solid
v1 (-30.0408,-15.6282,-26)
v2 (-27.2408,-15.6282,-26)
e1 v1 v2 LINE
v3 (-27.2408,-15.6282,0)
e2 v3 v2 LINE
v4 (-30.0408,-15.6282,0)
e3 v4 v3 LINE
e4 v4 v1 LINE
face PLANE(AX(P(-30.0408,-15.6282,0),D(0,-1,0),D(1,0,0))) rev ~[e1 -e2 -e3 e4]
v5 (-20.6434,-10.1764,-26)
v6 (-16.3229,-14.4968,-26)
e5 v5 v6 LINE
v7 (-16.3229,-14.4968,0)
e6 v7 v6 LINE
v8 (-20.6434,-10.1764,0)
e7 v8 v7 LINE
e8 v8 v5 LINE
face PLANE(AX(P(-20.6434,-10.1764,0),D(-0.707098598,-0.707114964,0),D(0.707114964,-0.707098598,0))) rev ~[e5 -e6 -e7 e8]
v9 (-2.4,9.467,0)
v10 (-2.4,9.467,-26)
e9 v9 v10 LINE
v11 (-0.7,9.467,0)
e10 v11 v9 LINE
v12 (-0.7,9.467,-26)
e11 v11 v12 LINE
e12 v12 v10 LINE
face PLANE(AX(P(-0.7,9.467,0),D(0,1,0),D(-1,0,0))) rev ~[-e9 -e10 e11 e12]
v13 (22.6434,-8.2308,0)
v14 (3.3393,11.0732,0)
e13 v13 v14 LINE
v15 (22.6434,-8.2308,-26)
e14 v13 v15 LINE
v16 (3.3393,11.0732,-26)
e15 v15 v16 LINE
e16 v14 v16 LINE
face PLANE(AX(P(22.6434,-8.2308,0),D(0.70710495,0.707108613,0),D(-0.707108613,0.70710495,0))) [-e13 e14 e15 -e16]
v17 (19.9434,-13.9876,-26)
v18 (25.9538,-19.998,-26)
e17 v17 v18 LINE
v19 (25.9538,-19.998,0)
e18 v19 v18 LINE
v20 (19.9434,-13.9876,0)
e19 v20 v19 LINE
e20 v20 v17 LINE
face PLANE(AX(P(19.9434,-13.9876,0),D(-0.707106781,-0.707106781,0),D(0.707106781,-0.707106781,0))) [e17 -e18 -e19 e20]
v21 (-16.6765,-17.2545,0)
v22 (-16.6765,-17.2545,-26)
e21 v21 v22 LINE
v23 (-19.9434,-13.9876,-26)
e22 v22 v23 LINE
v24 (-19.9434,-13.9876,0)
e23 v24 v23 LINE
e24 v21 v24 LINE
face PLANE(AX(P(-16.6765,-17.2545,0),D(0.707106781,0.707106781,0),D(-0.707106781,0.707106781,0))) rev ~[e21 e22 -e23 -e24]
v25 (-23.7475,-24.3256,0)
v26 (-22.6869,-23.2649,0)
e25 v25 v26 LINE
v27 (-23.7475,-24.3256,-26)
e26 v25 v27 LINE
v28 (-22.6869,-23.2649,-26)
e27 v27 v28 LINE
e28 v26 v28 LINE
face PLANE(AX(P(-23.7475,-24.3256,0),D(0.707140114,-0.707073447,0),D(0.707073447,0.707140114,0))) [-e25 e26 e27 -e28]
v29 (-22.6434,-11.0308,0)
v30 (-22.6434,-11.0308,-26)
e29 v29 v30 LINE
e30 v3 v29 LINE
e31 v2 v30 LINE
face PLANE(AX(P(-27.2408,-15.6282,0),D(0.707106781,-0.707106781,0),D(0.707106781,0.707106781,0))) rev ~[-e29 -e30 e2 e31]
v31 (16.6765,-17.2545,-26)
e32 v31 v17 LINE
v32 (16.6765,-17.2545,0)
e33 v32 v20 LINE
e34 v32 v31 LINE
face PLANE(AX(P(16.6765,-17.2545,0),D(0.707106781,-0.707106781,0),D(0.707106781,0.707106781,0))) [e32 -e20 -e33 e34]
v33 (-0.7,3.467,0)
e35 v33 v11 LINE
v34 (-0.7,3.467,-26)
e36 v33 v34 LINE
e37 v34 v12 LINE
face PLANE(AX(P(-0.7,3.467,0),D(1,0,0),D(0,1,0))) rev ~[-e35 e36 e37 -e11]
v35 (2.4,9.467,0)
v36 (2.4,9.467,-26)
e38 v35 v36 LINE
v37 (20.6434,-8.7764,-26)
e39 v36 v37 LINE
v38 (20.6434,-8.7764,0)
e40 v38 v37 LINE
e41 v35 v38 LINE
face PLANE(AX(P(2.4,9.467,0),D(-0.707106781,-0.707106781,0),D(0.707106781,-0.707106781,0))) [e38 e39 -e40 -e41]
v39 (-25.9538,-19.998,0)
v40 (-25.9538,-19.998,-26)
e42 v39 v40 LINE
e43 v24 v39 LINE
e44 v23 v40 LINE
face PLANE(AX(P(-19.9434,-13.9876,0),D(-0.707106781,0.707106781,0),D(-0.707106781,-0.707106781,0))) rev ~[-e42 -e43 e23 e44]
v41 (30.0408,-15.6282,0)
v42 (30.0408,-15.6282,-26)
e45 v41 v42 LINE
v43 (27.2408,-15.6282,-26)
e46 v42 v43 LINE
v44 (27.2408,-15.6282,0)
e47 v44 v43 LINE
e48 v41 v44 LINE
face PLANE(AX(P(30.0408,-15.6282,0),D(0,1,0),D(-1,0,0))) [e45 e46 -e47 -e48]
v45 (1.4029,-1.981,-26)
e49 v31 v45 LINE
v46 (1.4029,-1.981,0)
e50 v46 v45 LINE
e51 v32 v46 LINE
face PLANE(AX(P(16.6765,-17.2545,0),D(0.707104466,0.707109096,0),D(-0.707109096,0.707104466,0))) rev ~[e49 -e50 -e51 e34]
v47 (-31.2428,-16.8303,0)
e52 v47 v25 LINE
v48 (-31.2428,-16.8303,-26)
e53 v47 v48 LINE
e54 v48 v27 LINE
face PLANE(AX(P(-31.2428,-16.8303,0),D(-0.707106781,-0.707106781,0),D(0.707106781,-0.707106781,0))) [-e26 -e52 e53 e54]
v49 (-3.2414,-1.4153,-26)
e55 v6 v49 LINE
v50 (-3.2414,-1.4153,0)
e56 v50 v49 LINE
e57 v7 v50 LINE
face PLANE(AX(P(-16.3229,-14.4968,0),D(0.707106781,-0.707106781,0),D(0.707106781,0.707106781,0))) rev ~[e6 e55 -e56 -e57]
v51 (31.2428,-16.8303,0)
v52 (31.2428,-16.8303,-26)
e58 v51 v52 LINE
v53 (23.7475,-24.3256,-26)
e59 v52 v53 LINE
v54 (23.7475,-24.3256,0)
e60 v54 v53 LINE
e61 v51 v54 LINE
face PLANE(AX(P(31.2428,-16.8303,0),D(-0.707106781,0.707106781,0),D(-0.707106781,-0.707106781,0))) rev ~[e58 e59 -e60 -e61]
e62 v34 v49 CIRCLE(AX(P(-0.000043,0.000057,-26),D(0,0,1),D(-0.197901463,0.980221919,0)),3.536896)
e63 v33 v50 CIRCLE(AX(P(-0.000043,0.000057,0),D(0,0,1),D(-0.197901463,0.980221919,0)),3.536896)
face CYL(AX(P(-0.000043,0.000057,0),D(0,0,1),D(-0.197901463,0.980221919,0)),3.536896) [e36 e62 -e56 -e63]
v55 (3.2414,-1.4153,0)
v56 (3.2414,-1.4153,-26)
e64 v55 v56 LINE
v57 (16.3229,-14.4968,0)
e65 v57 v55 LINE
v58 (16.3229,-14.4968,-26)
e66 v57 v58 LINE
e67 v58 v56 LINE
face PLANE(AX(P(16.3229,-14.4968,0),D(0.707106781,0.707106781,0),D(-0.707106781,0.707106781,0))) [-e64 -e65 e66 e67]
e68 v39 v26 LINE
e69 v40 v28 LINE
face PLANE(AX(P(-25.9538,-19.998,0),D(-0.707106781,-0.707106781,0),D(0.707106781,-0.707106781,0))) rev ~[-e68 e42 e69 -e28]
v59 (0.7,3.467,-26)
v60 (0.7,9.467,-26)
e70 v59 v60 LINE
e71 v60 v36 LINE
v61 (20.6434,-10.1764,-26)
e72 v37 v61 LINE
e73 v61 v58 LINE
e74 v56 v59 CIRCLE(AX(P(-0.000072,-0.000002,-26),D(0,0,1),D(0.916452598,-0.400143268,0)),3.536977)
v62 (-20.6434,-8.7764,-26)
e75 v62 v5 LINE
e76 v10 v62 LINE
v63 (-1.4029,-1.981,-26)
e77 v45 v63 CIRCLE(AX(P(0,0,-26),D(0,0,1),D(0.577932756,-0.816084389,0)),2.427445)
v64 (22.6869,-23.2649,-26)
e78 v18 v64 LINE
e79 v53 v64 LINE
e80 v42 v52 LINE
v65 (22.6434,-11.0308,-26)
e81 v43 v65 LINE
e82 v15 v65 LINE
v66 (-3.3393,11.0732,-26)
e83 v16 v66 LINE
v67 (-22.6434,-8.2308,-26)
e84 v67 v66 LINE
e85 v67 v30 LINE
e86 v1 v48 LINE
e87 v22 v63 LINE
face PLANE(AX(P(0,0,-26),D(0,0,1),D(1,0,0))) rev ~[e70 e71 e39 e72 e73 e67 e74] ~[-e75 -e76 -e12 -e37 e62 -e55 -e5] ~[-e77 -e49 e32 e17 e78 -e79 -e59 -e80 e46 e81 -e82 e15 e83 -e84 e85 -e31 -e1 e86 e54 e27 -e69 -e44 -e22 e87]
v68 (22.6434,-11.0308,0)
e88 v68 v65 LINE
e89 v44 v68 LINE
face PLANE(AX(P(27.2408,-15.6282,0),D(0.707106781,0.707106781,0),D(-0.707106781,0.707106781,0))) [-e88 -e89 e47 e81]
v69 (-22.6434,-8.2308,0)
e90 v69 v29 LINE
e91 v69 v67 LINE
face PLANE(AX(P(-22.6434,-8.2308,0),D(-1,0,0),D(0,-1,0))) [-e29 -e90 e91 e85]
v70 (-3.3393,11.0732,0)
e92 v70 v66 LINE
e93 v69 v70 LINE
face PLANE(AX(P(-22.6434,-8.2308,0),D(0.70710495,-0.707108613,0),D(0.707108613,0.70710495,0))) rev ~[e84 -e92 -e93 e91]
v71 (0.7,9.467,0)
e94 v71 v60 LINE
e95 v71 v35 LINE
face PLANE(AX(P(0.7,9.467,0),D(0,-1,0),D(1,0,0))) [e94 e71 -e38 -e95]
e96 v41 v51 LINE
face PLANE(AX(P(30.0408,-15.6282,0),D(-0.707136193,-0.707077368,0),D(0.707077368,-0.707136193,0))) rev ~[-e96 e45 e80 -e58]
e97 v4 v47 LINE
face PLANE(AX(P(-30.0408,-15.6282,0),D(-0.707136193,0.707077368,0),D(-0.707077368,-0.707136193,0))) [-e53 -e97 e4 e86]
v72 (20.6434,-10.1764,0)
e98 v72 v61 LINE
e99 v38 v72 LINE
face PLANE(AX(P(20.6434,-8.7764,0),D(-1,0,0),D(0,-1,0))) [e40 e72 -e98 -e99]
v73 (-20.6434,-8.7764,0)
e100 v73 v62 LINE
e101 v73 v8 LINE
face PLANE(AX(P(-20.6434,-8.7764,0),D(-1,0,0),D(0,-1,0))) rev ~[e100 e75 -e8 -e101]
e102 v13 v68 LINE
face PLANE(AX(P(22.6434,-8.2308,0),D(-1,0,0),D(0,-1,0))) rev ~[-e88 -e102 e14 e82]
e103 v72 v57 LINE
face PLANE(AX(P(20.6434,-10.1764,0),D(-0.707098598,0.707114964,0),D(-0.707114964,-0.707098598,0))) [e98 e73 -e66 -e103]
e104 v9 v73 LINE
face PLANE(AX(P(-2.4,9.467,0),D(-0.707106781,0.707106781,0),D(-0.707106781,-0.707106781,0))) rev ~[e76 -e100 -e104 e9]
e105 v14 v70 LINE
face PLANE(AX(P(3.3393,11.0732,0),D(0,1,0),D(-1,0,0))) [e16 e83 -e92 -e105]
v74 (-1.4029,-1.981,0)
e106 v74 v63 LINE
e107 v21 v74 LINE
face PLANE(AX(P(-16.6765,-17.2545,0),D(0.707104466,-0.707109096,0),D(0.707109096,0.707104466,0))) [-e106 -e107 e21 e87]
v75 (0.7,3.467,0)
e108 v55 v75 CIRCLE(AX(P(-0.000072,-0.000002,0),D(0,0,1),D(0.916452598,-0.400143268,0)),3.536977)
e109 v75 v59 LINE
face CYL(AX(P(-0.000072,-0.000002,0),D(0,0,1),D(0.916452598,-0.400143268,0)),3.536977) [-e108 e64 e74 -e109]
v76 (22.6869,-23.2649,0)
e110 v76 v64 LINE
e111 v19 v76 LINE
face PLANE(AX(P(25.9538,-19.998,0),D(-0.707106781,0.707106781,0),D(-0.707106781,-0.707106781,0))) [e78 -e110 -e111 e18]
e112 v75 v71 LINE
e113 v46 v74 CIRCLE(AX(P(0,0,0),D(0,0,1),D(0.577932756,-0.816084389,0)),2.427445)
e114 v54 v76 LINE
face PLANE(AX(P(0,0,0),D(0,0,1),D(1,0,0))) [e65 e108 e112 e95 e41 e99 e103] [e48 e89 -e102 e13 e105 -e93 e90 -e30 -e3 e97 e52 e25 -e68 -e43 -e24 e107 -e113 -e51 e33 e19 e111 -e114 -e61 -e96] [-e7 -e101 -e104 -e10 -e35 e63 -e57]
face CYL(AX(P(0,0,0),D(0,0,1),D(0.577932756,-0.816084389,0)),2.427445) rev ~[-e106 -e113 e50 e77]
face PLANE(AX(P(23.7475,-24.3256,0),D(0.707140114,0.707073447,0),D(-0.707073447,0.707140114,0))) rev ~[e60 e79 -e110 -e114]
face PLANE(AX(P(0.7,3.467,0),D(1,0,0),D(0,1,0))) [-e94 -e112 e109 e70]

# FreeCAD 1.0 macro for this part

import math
import FreeCAD as App
import Part
import Sketcher
from FreeCAD import Vector

doc = App.newDocument("Part")
body = doc.addObject("PartDesign::Body", "Body")

# Sketch on XY plane
sketch1 = body.newObject("Sketcher::SketchObject", "Sketch")
sketch1.AttachmentSupport = (doc.getObject("XY_Plane"), [""])
sketch1.MapMode = "FlatFace"
sketch1.addGeometry(Part.LineSegment(Vector(-3.3, 11.1, 0), Vector(-22.6, -8.2, 0)), False)
sketch1.addGeometry(Part.LineSegment(Vector(-22.6, -8.2, 0), Vector(-22.6, -11, 0)), False)
sketch1.addGeometry(Part.LineSegment(Vector(-22.6, -11, 0), Vector(-27.2, -15.6, 0)), False)
sketch1.addGeometry(Part.LineSegment(Vector(-27.2, -15.6, 0), Vector(-30, -15.6, 0)), False)
sketch1.addGeometry(Part.LineSegment(Vector(-30, -15.6, 0), Vector(-31.2, -16.8, 0)), False)
sketch1.addGeometry(Part.LineSegment(Vector(-31.2, -16.8, 0), Vector(-23.7, -24.3, 0)), False)
sketch1.addGeometry(Part.LineSegment(Vector(-23.7, -24.3, 0), Vector(-22.7, -23.3, 0)), False)
sketch1.addGeometry(Part.LineSegment(Vector(-22.7, -23.3, 0), Vector(-26, -20, 0)), False)
sketch1.addGeometry(Part.LineSegment(Vector(-26, -20, 0), Vector(-19.9, -14, 0)), False)
sketch1.addGeometry(Part.LineSegment(Vector(-19.9, -14, 0), Vector(-16.7, -17.3, 0)), False)
sketch1.addGeometry(Part.LineSegment(Vector(-16.7, -17.3, 0), Vector(-1.4, -2, 0)), False)
sketch1.addGeometry(Part.ArcOfCircle(Part.Circle(Vector(0, 0, 0), Vector(0, 0, 1), 2.4), math.radians(-55), math.radians(235)), False)
sketch1.addGeometry(Part.LineSegment(Vector(1.4, -2, 0), Vector(16.7, -17.3, 0)), False)
sketch1.addGeometry(Part.LineSegment(Vector(16.7, -17.3, 0), Vector(19.9, -14, 0)), False)
sketch1.addGeometry(Part.LineSegment(Vector(19.9, -14, 0), Vector(26, -20, 0)), False)
sketch1.addGeometry(Part.LineSegment(Vector(26, -20, 0), Vector(22.7, -23.3, 0)), False)
sketch1.addGeometry(Part.LineSegment(Vector(22.7, -23.3, 0), Vector(23.7, -24.3, 0)), False)
sketch1.addGeometry(Part.LineSegment(Vector(23.7, -24.3, 0), Vector(31.2, -16.8, 0)), False)
sketch1.addGeometry(Part.LineSegment(Vector(31.2, -16.8, 0), Vector(30, -15.6, 0)), False)
sketch1.addGeometry(Part.LineSegment(Vector(30, -15.6, 0), Vector(27.2, -15.6, 0)), False)
sketch1.addGeometry(Part.LineSegment(Vector(27.2, -15.6, 0), Vector(22.6, -11, 0)), False)
sketch1.addGeometry(Part.LineSegment(Vector(22.6, -11, 0), Vector(22.6, -8.2, 0)), False)
sketch1.addGeometry(Part.LineSegment(Vector(22.6, -8.2, 0), Vector(3.3, 11.1, 0)), False)
sketch1.addGeometry(Part.LineSegment(Vector(3.3, 11.1, 0), Vector(-3.3, 11.1, 0)), False)
sketch1.addGeometry(Part.LineSegment(Vector(-2.4, 9.5, 0), Vector(-0.7, 9.5, 0)), False)
sketch1.addGeometry(Part.LineSegment(Vector(-0.7, 9.5, 0), Vector(-0.7, 3.5, 0)), False)
sketch1.addGeometry(Part.ArcOfCircle(Part.Circle(Vector(0, 0, 0), Vector(0, 0, 1), 3.5), math.radians(101), math.radians(204)), False)
sketch1.addGeometry(Part.LineSegment(Vector(-3.2, -1.4, 0), Vector(-16.3, -14.5, 0)), False)
sketch1.addGeometry(Part.LineSegment(Vector(-16.3, -14.5, 0), Vector(-20.6, -10.2, 0)), False)
sketch1.addGeometry(Part.LineSegment(Vector(-20.6, -10.2, 0), Vector(-20.6, -8.8, 0)), False)
sketch1.addGeometry(Part.LineSegment(Vector(-20.6, -8.8, 0), Vector(-2.4, 9.5, 0)), False)
sketch1.addGeometry(Part.LineSegment(Vector(0.7, 3.5, 0), Vector(0.7, 9.5, 0)), False)
sketch1.addGeometry(Part.LineSegment(Vector(0.7, 9.5, 0), Vector(2.4, 9.5, 0)), False)
sketch1.addGeometry(Part.LineSegment(Vector(2.4, 9.5, 0), Vector(20.6, -8.8, 0)), False)
sketch1.addGeometry(Part.LineSegment(Vector(20.6, -8.8, 0), Vector(20.6, -10.2, 0)), False)
sketch1.addGeometry(Part.LineSegment(Vector(20.6, -10.2, 0), Vector(16.3, -14.5, 0)), False)
sketch1.addGeometry(Part.LineSegment(Vector(16.3, -14.5, 0), Vector(3.2, -1.4, 0)), False)
sketch1.addGeometry(Part.ArcOfCircle(Part.Circle(Vector(0, 0, 0), Vector(0, 0, 1), 3.5), math.radians(-24), math.radians(79)), False)
sketch1.addConstraint(Sketcher.Constraint("Coincident", 0, 2, 1, 1))
sketch1.addConstraint(Sketcher.Constraint("Coincident", 1, 2, 2, 1))
sketch1.addConstraint(Sketcher.Constraint("Coincident", 2, 2, 3, 1))
sketch1.addConstraint(Sketcher.Constraint("Coincident", 3, 2, 4, 1))
sketch1.addConstraint(Sketcher.Constraint("Coincident", 4, 2, 5, 1))
sketch1.addConstraint(Sketcher.Constraint("Coincident", 5, 2, 6, 1))
sketch1.addConstraint(Sketcher.Constraint("Coincident", 6, 2, 7, 1))
sketch1.addConstraint(Sketcher.Constraint("Coincident", 7, 2, 8, 1))
sketch1.addConstraint(Sketcher.Constraint("Coincident", 8, 2, 9, 1))
sketch1.addConstraint(Sketcher.Constraint("Coincident", 9, 2, 10, 1))
sketch1.addConstraint(Sketcher.Constraint("Coincident", 10, 2, 11, 2))
sketch1.addConstraint(Sketcher.Constraint("Coincident", 11, 1, 12, 1))
sketch1.addConstraint(Sketcher.Constraint("Coincident", 12, 2, 13, 1))
sketch1.addConstraint(Sketcher.Constraint("Coincident", 13, 2, 14, 1))
sketch1.addConstraint(Sketcher.Constraint("Coincident", 14, 2, 15, 1))
sketch1.addConstraint(Sketcher.Constraint("Coincident", 15, 2, 16, 1))
sketch1.addConstraint(Sketcher.Constraint("Coincident", 16, 2, 17, 1))
sketch1.addConstraint(Sketcher.Constraint("Coincident", 17, 2, 18, 1))
sketch1.addConstraint(Sketcher.Constraint("Coincident", 18, 2, 19, 1))
sketch1.addConstraint(Sketcher.Constraint("Coincident", 19, 2, 20, 1))
sketch1.addConstraint(Sketcher.Constraint("Coincident", 20, 2, 21, 1))
sketch1.addConstraint(Sketcher.Constraint("Coincident", 21, 2, 22, 1))
sketch1.addConstraint(Sketcher.Constraint("Coincident", 22, 2, 23, 1))
sketch1.addConstraint(Sketcher.Constraint("Coincident", 23, 2, 0, 1))
sketch1.addConstraint(Sketcher.Constraint("Coincident", 24, 2, 25, 1))
sketch1.addConstraint(Sketcher.Constraint("Coincident", 25, 2, 26, 1))
sketch1.addConstraint(Sketcher.Constraint("Coincident", 26, 2, 27, 1))
sketch1.addConstraint(Sketcher.Constraint("Coincident", 27, 2, 28, 1))
sketch1.addConstraint(Sketcher.Constraint("Coincident", 28, 2, 29, 1))
sketch1.addConstraint(Sketcher.Constraint("Coincident", 29, 2, 30, 1))
sketch1.addConstraint(Sketcher.Constraint("Coincident", 30, 2, 24, 1))
sketch1.addConstraint(Sketcher.Constraint("Coincident", 31, 2, 32, 1))
sketch1.addConstraint(Sketcher.Constraint("Coincident", 32, 2, 33, 1))
sketch1.addConstraint(Sketcher.Constraint("Coincident", 33, 2, 34, 1))
sketch1.addConstraint(Sketcher.Constraint("Coincident", 34, 2, 35, 1))
sketch1.addConstraint(Sketcher.Constraint("Coincident", 35, 2, 36, 1))
sketch1.addConstraint(Sketcher.Constraint("Coincident", 36, 2, 37, 1))
sketch1.addConstraint(Sketcher.Constraint("Coincident", 37, 2, 31, 1))
sketch1.addConstraint(Sketcher.Constraint("Vertical", 1))
sketch1.addConstraint(Sketcher.Constraint("Horizontal", 3))
sketch1.addConstraint(Sketcher.Constraint("Horizontal", 19))
sketch1.addConstraint(Sketcher.Constraint("Vertical", 21))
sketch1.addConstraint(Sketcher.Constraint("Horizontal", 23))
sketch1.addConstraint(Sketcher.Constraint("Horizontal", 24))
sketch1.addConstraint(Sketcher.Constraint("Vertical", 25))
sketch1.addConstraint(Sketcher.Constraint("Vertical", 29))
sketch1.addConstraint(Sketcher.Constraint("Vertical", 31))
sketch1.addConstraint(Sketcher.Constraint("Horizontal", 32))
sketch1.addConstraint(Sketcher.Constraint("Vertical", 34))
sketch1.addConstraint(Sketcher.Constraint("Coincident", 11, 3, -1, 1))
sketch1.addConstraint(Sketcher.Constraint("Coincident", 26, 3, -1, 1))
sketch1.addConstraint(Sketcher.Constraint("Coincident", 37, 3, -1, 1))
sketch1.addConstraint(Sketcher.Constraint("Equal", 26, 37))
sketch1.addConstraint(Sketcher.Constraint("Symmetric", 9, 2, 12, 2, -2))
sketch1.addConstraint(Sketcher.Constraint("Symmetric", 8, 2, 13, 2, -2))
sketch1.addConstraint(Sketcher.Constraint("Symmetric", 7, 2, 14, 2, -2))
sketch1.addConstraint(Sketcher.Constraint("Symmetric", 6, 2, 15, 2, -2))
sketch1.addConstraint(Sketcher.Constraint("Symmetric", 5, 2, 16, 2, -2))
sketch1.addConstraint(Sketcher.Constraint("Symmetric", 4, 2, 17, 2, -2))
sketch1.addConstraint(Sketcher.Constraint("Symmetric", 3, 2, 18, 2, -2))
sketch1.addConstraint(Sketcher.Constraint("Symmetric", 1, 2, 20, 2, -2))
sketch1.addConstraint(Sketcher.Constraint("Symmetric", 24, 2, 31, 2, -2))
sketch1.addConstraint(Sketcher.Constraint("Symmetric", 29, 2, 33, 2, -2))
sketch1.addConstraint(Sketcher.Constraint("Symmetric", 27, 2, 35, 2, -2))
sketch1.addConstraint(Sketcher.Constraint("Parallel", 0, 2))
sketch1.addConstraint(Sketcher.Constraint("Parallel", 2, 4))
sketch1.addConstraint(Sketcher.Constraint("Perpendicular", 4, 5))
sketch1.addConstraint(Sketcher.Constraint("Perpendicular", 5, 6))
sketch1.addConstraint(Sketcher.Constraint("Perpendicular", 6, 7))
sketch1.addConstraint(Sketcher.Constraint("Perpendicular", 7, 8))
sketch1.addConstraint(Sketcher.Constraint("Perpendicular", 8, 9))
sketch1.addConstraint(Sketcher.Constraint("Perpendicular", 9, 10))
sketch1.addConstraint(Sketcher.Constraint("Perpendicular", 10, 12))
sketch1.addConstraint(Sketcher.Constraint("Perpendicular", 12, 13))
sketch1.addConstraint(Sketcher.Constraint("Parallel", 18, 20))
sketch1.addConstraint(Sketcher.Constraint("Parallel", 20, 22))
sketch1.addConstraint(Sketcher.Constraint("Perpendicular", 22, 27))
sketch1.addConstraint(Sketcher.Constraint("Perpendicular", 27, 28))
sketch1.addConstraint(Sketcher.Constraint("Perpendicular", 28, 30))
sketch1.addConstraint(Sketcher.Constraint("Perpendicular", 30, 33))
sketch1.addConstraint(Sketcher.Constraint("Perpendicular", 33, 35))
sketch1.addConstraint(Sketcher.Constraint("Perpendicular", 35, 36))
sketch1.addConstraint(Sketcher.Constraint("Horizontal", 0, 2, 21, 2))
sketch1.addConstraint(Sketcher.Constraint("Equal", 19, 1))
sketch1.addConstraint(Sketcher.Constraint("Equal", 7, 9))
sketch1.addConstraint(Sketcher.Constraint("DistanceY", 25, 2, 25, 1, 6.0))
sketch1.addConstraint(Sketcher.Constraint("DistanceX", 3, 2, 3, 1, 2.8))
sketch1.addConstraint(Sketcher.Constraint("DistanceX", 24, 1, 24, 2, 1.7))
sketch1.addConstraint(Sketcher.Constraint("DistanceY", 29, 1, 29, 2, 1.4))
sketch1.addConstraint(Sketcher.Constraint("DistanceX", 1, 2, 28, 2, 2.0))
sketch1.addConstraint(Sketcher.Constraint("Distance", 0, 27.3))
sketch1.addConstraint(Sketcher.Constraint("Distance", 4, 1.7))
sketch1.addConstraint(Sketcher.Constraint("Distance", 5, 10.6))
sketch1.addConstraint(Sketcher.Constraint("Distance", 6, 1.5))
sketch1.addConstraint(Sketcher.Constraint("Distance", 8, 8.5))
sketch1.addConstraint(Sketcher.Constraint("Distance", 10, 21.6))
sketch1.addConstraint(Sketcher.Constraint("Distance", 27, 18.5))
sketch1.addConstraint(Sketcher.Constraint("Distance", 30, 25.8))
sketch1.addConstraint(Sketcher.Constraint("DistanceX", 24, 2, -1, 1, 0.7))
sketch1.addConstraint(Sketcher.Constraint("DistanceX", 28, 2, 8, 2, 0.7))
sketch1.addConstraint(Sketcher.Constraint("Radius", 26, 3.537))
sketch1.addConstraint(Sketcher.Constraint("Radius", 11, 2.4274))
sketch1.addConstraint(Sketcher.Constraint("Distance", 7, 4.62))
pad1 = body.newObject("PartDesign::Pad", "Pad")
pad1.Profile = sketch1
pad1.Length = 26
pad1.Reversed = True

doc.recompute()
